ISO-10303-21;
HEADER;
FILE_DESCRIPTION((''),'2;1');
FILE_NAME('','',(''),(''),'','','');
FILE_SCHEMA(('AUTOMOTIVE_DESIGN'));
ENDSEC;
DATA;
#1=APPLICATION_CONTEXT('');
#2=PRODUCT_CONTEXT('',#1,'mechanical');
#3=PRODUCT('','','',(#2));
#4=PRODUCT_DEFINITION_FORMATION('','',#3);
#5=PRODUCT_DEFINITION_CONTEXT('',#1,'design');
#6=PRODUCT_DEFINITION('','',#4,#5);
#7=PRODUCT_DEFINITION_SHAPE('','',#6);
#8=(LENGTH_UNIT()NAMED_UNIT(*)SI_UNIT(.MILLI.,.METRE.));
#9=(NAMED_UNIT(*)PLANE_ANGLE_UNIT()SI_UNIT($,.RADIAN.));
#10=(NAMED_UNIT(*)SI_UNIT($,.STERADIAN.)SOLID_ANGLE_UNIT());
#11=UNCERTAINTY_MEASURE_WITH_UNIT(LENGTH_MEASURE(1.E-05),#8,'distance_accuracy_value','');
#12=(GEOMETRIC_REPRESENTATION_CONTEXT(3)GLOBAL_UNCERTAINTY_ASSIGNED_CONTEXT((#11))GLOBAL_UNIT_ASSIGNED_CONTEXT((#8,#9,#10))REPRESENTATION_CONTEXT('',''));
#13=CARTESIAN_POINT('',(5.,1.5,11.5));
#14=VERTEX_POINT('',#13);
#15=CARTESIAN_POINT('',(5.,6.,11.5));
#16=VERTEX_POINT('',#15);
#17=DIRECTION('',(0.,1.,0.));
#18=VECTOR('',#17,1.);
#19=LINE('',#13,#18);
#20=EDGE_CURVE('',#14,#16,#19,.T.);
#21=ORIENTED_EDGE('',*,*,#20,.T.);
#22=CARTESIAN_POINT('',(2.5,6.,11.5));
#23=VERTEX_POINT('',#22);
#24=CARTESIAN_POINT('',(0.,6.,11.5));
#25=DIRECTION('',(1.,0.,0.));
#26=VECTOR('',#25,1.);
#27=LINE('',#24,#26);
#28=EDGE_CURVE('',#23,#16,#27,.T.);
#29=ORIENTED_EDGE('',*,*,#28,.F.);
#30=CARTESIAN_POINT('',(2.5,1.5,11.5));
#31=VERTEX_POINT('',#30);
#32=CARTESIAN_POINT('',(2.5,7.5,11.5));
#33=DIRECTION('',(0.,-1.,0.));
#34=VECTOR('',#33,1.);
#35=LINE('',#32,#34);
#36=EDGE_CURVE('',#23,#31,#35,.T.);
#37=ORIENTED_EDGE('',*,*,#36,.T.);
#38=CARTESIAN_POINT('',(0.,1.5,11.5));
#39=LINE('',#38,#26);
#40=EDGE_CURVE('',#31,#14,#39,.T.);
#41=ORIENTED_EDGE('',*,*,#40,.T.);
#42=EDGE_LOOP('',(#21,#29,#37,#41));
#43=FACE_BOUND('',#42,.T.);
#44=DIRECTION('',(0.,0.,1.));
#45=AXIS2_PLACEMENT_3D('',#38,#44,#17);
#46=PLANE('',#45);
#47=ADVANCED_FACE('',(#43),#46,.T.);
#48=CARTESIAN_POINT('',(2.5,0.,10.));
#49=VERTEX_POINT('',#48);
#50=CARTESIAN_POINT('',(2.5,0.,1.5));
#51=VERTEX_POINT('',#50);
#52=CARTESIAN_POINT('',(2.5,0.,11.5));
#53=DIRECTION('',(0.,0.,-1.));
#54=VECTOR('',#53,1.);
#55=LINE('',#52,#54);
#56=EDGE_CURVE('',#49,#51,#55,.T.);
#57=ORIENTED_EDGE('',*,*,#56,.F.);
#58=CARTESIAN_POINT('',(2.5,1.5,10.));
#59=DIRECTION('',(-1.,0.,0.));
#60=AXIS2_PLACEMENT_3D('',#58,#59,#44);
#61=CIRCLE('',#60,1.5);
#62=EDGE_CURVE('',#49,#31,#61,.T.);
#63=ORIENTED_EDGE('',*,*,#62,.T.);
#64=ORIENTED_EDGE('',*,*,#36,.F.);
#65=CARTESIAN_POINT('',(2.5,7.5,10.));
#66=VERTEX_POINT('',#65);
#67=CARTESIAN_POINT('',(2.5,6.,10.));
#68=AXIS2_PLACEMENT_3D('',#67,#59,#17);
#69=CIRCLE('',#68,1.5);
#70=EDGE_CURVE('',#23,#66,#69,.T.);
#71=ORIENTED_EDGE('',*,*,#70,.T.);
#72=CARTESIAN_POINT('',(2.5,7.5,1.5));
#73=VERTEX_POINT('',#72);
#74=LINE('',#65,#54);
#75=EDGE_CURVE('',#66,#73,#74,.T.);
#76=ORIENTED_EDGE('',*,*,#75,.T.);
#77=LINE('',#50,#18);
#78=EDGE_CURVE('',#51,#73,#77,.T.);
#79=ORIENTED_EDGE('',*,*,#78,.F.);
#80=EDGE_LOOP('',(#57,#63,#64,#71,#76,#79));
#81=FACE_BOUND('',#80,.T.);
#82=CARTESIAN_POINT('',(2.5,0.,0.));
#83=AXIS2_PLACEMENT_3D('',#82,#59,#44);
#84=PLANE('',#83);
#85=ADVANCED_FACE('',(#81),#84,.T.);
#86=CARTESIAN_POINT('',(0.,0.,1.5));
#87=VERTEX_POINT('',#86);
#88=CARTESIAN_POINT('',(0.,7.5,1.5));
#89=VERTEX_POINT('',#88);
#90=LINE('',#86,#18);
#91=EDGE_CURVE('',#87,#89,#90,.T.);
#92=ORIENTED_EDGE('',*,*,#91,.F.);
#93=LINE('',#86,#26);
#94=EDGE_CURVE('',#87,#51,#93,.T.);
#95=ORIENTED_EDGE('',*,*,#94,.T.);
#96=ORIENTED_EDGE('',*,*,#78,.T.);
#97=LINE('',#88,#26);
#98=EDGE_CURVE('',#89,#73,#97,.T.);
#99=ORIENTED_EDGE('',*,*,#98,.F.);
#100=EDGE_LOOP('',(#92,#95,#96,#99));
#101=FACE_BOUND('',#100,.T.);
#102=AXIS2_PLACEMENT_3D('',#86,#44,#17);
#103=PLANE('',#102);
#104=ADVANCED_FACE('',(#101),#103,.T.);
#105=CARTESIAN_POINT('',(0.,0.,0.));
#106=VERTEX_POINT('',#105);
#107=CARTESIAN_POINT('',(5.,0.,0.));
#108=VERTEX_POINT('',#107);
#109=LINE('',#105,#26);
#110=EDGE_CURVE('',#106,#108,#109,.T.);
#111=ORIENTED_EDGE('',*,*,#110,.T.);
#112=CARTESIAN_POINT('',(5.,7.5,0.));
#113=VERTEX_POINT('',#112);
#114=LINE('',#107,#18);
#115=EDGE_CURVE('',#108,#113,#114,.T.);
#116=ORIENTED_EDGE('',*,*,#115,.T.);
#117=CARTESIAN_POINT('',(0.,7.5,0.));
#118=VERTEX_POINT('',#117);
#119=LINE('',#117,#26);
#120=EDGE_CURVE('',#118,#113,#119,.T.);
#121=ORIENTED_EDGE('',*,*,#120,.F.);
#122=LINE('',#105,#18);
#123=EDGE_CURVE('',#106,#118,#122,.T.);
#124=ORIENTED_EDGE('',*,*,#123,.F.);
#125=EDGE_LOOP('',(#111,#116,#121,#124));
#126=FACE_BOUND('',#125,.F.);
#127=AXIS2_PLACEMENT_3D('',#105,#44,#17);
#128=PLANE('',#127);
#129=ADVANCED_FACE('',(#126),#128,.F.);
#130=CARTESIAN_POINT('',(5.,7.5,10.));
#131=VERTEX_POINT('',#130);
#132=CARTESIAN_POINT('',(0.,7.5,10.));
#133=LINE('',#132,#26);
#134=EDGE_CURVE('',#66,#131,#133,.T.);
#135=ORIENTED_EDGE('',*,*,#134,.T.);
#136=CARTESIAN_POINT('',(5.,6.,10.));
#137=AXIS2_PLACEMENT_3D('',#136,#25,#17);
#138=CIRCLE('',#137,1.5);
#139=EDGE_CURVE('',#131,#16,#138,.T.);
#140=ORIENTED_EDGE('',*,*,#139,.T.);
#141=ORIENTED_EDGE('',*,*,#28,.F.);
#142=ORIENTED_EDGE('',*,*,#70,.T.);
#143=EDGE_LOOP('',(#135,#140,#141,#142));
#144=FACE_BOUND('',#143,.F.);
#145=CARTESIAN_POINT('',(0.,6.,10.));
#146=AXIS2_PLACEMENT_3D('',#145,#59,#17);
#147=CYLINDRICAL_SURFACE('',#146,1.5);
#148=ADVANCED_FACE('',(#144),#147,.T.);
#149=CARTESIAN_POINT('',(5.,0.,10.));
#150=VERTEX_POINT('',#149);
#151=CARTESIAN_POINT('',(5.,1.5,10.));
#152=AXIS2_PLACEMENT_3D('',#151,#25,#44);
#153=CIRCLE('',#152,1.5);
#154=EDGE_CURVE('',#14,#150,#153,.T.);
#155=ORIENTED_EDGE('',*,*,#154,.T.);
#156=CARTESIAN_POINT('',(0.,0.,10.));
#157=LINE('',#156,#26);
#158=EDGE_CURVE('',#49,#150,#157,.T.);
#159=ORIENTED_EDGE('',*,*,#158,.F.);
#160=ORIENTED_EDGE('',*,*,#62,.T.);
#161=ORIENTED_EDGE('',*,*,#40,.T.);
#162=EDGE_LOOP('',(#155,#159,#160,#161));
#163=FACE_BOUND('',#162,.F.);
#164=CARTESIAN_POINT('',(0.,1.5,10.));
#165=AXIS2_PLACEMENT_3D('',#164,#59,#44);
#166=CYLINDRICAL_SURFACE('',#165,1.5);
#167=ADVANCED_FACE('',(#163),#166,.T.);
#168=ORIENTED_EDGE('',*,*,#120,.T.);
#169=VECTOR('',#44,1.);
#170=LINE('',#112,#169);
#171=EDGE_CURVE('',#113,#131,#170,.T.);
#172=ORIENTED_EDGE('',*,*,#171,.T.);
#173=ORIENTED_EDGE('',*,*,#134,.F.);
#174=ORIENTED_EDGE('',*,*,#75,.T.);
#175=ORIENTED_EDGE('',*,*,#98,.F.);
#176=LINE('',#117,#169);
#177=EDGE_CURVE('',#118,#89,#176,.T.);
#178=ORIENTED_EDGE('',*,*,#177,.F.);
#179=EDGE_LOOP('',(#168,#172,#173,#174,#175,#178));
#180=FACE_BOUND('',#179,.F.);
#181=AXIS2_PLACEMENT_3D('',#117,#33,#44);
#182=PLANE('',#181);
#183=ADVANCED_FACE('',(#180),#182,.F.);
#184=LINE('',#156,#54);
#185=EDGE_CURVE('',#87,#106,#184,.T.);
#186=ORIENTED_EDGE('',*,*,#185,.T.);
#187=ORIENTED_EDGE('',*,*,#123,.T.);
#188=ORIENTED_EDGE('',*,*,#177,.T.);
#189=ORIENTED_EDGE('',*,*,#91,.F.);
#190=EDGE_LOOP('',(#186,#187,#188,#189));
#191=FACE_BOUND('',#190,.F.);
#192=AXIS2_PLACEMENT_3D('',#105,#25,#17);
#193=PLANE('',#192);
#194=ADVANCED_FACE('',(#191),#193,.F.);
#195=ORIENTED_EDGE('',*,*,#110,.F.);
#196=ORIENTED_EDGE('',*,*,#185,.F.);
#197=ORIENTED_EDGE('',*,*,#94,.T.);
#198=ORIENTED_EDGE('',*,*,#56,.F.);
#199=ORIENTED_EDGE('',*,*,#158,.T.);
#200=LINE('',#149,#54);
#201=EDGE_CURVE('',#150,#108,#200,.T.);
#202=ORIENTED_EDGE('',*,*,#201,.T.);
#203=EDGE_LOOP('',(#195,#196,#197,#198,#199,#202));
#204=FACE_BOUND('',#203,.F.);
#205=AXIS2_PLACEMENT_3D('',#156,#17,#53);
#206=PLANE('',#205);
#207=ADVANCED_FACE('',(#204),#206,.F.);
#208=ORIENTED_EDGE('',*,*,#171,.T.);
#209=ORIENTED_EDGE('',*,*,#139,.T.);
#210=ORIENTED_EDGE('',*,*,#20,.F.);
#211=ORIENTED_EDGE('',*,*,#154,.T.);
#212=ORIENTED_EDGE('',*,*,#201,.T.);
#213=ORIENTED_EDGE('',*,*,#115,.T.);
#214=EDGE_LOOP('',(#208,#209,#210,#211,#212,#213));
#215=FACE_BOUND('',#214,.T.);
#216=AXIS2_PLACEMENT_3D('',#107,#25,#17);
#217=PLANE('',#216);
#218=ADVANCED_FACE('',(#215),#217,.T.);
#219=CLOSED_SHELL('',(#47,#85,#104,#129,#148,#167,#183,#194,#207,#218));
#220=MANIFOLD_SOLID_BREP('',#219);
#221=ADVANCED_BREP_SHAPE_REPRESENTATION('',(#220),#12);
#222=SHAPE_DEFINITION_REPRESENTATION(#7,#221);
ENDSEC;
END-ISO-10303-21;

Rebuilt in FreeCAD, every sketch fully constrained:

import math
import FreeCAD as App
import Part
import Sketcher
from FreeCAD import Vector
Q = App.Units.Quantity


def add_polygon(sketch, points):
    """Adds a closed chain of lines whose ends are joined by coincident constraints."""
    first, n = sketch.GeometryCount, len(points)
    for a, b in zip(points, points[1:] + points[:1]):
        sketch.addGeometry(Part.LineSegment(App.Vector(*a, 0), App.Vector(*b, 0)), False)
    for i in range(n):
        sketch.addConstraint(Sketcher.Constraint("Coincident", first + i, 2, first + (i + 1) % n, 1))

doc = App.newDocument("Part")
body = doc.addObject("PartDesign::Body", "Body")

sketch1 = body.newObject("Sketcher::SketchObject", "Sketch")
sketch1.AttachmentSupport = (doc.getObject("YZ_Plane"), [""])
sketch1.MapMode = "FlatFace"
sketch1.addGeometry(Part.ArcOfCircle(Part.Circle(Vector(1.5, 10, 0), Vector(0, 0, 1), 1.5), math.radians(90), math.radians(180)), False)
sketch1.addGeometry(Part.LineSegment(Vector(0, 10, 0), Vector(0, 0, 0)), False)
sketch1.addGeometry(Part.LineSegment(Vector(0, 0, 0), Vector(7.5, 0, 0)), False)
sketch1.addGeometry(Part.LineSegment(Vector(7.5, 0, 0), Vector(7.5, 10, 0)), False)
sketch1.addGeometry(Part.ArcOfCircle(Part.Circle(Vector(6, 10, 0), Vector(0, 0, 1), 1.5), math.radians(0), math.radians(90)), False)
sketch1.addGeometry(Part.LineSegment(Vector(6, 11.5, 0), Vector(1.5, 11.5, 0)), False)
sketch1.addConstraint(Sketcher.Constraint("Tangent", 0, 2, 1, 1))
sketch1.addConstraint(Sketcher.Constraint("Coincident", 1, 2, 2, 1))
sketch1.addConstraint(Sketcher.Constraint("Coincident", 2, 2, 3, 1))
sketch1.addConstraint(Sketcher.Constraint("Tangent", 3, 2, 4, 1))
sketch1.addConstraint(Sketcher.Constraint("Tangent", 4, 2, 5, 1))
sketch1.addConstraint(Sketcher.Constraint("Tangent", 5, 2, 0, 1))
sketch1.addConstraint(Sketcher.Constraint("Vertical", 1))
sketch1.addConstraint(Sketcher.Constraint("Horizontal", 2))
sketch1.addConstraint(Sketcher.Constraint("Vertical", 3))
sketch1.addConstraint(Sketcher.Constraint("Horizontal", 5))
sketch1.addConstraint(Sketcher.Constraint("Coincident", 1, 2, -1, 1))
sketch1.addConstraint(Sketcher.Constraint("Equal", 0, 4))
sketch1.addConstraint(Sketcher.Constraint("DistanceX", 2, 1, 2, 2, Q("7.5 mm")))
sketch1.addConstraint(Sketcher.Constraint("Radius", 0, Q("1.5 mm")))
sketch1.addConstraint(Sketcher.Constraint("DistanceY", 1, 2, 1, 1, Q("10 mm")))
pad1 = body.newObject("PartDesign::Pad", "Pad")
pad1.Profile = sketch1
pad1.Length = 5

sketch2 = body.newObject("Sketcher::SketchObject", "Sketch001")
sketch2.AttachmentSupport = (doc.getObject("YZ_Plane"), [""])
sketch2.MapMode = "FlatFace"
add_polygon(sketch2, [(7.5, 11.5), (7.5, 1.5), (0, 1.5), (0, 11.5)])
sketch2.addConstraint(Sketcher.Constraint("Vertical", 0))
sketch2.addConstraint(Sketcher.Constraint("Horizontal", 1))
sketch2.addConstraint(Sketcher.Constraint("Vertical", 2))
sketch2.addConstraint(Sketcher.Constraint("Horizontal", 3))
sketch2.addConstraint(Sketcher.Constraint("PointOnObject", 1, 2, -2))
sketch2.addConstraint(Sketcher.Constraint("DistanceY", 0, 2, 0, 1, Q("10 mm")))
sketch2.addConstraint(Sketcher.Constraint("DistanceX", 1, 2, 1, 1, Q("7.5 mm")))
sketch2.addConstraint(Sketcher.Constraint("DistanceY", -1, 1, 0, 2, Q("1.5 mm")))
pocket1 = body.newObject("PartDesign::Pocket", "Pocket")
pocket1.Profile = sketch2
pocket1.Length = 2.5
pocket1.Reversed = True

doc.recompute()
